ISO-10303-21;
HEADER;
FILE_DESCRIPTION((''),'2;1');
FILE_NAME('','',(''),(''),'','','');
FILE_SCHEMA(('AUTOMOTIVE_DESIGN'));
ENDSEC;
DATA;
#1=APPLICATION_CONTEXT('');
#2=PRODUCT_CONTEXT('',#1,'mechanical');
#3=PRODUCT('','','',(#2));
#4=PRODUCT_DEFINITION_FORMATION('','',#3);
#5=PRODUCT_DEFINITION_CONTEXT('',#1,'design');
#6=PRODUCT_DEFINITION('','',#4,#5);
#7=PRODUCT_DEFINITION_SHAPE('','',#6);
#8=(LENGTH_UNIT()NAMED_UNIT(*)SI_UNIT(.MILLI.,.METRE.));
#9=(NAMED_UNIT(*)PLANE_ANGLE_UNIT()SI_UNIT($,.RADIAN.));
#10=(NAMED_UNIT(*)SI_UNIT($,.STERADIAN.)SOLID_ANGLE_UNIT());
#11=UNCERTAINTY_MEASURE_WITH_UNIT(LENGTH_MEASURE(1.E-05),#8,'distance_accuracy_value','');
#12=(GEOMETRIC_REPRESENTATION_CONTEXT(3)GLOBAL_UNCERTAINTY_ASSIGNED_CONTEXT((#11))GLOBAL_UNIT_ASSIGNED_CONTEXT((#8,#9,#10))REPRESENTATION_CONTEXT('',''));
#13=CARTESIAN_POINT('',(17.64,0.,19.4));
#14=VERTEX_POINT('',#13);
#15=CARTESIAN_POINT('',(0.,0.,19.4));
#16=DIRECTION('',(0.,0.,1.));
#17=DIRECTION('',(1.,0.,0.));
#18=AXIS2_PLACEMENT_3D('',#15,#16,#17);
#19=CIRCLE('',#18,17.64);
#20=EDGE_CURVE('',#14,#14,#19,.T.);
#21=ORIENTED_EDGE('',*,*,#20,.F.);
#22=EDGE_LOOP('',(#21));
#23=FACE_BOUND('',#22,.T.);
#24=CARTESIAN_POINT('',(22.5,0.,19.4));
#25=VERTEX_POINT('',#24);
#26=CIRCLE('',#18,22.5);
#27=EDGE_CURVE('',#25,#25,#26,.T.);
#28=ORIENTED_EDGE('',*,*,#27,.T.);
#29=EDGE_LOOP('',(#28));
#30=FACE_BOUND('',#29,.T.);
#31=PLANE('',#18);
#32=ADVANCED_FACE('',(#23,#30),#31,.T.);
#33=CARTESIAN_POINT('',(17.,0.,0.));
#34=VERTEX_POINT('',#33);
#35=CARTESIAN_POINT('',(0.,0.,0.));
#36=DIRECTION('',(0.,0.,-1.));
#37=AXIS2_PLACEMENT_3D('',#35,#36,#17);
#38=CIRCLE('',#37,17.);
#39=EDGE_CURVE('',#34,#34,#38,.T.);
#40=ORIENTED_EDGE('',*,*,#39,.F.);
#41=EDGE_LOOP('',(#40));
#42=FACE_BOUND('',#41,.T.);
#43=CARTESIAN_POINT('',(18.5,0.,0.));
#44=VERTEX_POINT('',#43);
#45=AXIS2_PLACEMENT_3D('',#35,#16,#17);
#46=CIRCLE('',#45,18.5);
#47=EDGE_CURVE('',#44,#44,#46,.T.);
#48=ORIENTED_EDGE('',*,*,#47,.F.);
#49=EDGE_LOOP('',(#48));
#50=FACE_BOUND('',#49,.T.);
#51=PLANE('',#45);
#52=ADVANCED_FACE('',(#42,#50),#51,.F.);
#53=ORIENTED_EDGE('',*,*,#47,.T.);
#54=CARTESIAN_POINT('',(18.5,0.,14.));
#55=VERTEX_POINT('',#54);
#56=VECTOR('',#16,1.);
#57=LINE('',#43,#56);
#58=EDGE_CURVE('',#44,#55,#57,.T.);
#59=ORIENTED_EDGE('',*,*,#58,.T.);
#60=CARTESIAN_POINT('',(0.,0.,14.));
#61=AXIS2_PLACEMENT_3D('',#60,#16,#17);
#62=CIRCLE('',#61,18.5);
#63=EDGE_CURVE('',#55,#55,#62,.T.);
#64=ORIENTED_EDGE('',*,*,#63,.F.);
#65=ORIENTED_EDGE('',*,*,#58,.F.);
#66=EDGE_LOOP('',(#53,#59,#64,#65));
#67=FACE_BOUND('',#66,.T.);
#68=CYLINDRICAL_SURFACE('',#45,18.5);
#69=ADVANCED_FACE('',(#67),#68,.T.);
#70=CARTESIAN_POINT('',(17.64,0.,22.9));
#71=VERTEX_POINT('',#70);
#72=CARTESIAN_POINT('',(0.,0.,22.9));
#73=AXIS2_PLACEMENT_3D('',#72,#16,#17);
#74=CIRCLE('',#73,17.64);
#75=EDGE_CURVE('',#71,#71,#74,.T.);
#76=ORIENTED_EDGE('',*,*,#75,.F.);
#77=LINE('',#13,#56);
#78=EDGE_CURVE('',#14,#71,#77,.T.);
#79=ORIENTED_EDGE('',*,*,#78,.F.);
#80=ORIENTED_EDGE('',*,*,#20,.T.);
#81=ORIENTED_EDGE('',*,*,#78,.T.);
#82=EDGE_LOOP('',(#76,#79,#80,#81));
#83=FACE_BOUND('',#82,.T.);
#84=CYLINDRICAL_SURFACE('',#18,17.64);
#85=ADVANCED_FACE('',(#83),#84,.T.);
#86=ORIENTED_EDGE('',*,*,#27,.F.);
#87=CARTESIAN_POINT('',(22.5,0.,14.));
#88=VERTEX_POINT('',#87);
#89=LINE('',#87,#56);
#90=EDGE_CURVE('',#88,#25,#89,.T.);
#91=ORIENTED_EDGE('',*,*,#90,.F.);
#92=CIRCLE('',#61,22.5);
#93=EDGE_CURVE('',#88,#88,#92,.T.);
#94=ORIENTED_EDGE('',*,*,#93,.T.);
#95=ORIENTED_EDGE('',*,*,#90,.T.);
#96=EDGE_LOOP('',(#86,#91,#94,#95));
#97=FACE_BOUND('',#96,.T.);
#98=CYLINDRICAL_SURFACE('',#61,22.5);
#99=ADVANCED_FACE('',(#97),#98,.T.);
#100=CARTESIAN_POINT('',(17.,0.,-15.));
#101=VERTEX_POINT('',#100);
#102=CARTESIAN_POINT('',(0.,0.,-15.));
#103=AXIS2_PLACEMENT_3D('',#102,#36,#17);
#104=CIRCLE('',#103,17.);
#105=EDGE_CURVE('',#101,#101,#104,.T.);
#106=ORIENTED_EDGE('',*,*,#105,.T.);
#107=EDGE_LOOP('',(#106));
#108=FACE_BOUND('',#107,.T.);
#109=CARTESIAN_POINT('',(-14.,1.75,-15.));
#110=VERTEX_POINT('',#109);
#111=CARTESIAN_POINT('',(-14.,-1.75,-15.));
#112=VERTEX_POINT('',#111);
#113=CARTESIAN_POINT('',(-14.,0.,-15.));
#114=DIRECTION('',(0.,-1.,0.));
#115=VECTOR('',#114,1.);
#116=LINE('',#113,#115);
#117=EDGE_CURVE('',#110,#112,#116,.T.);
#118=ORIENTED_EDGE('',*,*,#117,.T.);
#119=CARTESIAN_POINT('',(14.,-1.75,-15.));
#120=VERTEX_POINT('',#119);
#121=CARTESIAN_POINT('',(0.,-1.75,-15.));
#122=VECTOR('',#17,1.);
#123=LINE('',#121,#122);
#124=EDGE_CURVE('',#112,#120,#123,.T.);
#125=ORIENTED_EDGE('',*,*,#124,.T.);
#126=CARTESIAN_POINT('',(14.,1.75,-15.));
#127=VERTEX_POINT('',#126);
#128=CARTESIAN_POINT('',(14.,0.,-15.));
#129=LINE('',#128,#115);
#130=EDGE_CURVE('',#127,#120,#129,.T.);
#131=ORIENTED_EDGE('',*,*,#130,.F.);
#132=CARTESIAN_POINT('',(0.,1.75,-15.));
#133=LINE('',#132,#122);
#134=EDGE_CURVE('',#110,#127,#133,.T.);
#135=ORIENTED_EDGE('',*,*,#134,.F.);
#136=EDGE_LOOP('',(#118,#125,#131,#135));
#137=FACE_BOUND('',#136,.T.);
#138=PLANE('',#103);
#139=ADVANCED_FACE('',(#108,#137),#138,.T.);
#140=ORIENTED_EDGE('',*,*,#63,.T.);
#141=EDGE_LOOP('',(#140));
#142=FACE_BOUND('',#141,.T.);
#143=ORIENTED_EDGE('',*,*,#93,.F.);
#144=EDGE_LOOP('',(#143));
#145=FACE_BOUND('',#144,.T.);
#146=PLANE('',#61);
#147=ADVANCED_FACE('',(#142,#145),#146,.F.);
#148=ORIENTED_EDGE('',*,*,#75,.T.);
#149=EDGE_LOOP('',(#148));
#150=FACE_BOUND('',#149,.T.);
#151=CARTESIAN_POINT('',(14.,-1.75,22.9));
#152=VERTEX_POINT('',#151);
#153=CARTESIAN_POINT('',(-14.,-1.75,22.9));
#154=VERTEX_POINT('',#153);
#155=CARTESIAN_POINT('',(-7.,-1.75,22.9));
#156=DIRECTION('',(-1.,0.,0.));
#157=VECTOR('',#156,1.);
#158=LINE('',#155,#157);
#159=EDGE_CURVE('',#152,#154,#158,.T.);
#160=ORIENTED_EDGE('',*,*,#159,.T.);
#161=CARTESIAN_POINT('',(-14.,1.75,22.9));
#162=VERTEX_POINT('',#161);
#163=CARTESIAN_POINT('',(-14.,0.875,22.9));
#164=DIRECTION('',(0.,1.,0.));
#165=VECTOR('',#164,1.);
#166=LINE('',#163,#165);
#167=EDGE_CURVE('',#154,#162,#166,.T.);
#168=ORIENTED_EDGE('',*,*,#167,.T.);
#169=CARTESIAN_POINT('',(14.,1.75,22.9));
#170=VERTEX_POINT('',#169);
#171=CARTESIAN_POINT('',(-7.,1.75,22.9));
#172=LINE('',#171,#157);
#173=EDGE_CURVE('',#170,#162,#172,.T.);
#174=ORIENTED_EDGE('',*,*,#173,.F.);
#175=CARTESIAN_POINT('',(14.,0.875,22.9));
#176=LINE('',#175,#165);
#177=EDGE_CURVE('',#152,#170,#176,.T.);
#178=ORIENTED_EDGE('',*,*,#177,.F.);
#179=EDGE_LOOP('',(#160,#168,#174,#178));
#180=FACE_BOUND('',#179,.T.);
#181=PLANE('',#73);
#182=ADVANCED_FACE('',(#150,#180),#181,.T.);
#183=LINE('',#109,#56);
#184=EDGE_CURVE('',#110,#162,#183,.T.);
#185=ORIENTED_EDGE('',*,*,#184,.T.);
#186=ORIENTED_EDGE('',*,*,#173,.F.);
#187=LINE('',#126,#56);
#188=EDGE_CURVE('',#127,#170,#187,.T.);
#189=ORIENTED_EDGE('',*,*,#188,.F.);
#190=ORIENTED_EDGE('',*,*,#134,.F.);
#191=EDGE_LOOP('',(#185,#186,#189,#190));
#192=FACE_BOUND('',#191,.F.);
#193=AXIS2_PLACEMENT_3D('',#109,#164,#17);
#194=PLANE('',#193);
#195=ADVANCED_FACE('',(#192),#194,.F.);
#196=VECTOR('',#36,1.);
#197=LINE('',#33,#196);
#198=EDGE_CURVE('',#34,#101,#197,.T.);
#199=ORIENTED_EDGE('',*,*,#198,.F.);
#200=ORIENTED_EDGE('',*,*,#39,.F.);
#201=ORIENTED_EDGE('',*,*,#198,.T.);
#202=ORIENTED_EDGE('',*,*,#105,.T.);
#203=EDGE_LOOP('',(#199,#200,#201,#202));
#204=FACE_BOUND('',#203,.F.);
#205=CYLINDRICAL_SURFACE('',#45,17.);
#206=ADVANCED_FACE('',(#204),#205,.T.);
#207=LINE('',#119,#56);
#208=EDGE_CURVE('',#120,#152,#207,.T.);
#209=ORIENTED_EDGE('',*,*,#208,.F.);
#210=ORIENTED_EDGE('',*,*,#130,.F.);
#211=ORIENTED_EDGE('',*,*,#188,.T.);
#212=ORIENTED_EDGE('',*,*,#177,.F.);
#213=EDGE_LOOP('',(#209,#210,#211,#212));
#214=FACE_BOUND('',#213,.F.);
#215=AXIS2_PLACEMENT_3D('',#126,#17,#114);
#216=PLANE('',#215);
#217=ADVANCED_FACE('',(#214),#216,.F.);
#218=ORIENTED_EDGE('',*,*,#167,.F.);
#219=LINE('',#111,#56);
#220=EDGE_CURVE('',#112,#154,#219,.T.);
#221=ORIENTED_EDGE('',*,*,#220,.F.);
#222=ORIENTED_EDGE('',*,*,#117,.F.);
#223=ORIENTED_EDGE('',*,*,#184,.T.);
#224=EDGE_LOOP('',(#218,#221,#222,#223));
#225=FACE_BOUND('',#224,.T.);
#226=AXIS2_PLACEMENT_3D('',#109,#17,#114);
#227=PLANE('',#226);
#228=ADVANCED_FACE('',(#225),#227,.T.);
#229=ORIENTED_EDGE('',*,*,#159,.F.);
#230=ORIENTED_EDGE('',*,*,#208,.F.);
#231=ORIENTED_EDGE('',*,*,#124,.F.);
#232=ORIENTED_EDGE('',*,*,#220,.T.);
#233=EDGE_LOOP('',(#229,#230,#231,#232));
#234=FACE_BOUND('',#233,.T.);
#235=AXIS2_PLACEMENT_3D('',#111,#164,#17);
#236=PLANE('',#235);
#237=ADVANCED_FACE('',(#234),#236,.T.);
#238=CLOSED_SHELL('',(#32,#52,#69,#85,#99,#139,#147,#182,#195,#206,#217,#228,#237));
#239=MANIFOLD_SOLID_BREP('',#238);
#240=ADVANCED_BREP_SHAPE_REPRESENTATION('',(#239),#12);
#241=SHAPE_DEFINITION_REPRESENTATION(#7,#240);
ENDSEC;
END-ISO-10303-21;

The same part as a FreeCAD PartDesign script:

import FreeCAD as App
import Part
import Sketcher

V = App.Vector
Q = App.Units.Quantity


def add_polygon(sketch, points):
    """Adds a closed chain of lines whose ends are joined by coincident constraints."""
    first, n = sketch.GeometryCount, len(points)
    for a, b in zip(points, points[1:] + points[:1]):
        sketch.addGeometry(Part.LineSegment(App.Vector(*a, 0), App.Vector(*b, 0)), False)
    for i in range(n):
        sketch.addConstraint(Sketcher.Constraint("Coincident", first + i, 2, first + (i + 1) % n, 1))

doc = App.newDocument("Part")
body = doc.addObject("PartDesign::Body", "Body")

sketch1 = body.newObject("Sketcher::SketchObject", "Sketch")
sketch1.AttachmentSupport = (doc.getObject("XZ_Plane"), [""])
sketch1.MapMode = "FlatFace"
add_polygon(sketch1, [(0, 22.9), (0, 0), (18.5, 0), (18.5, 14), (22.5, 14), (22.5, 19.4), (17.6, 19.4), (17.6, 22.9)])
sketch1.addConstraint(Sketcher.Constraint("Vertical", 0))
sketch1.addConstraint(Sketcher.Constraint("Horizontal", 1))
sketch1.addConstraint(Sketcher.Constraint("Vertical", 2))
sketch1.addConstraint(Sketcher.Constraint("Horizontal", 3))
sketch1.addConstraint(Sketcher.Constraint("Vertical", 4))
sketch1.addConstraint(Sketcher.Constraint("Horizontal", 5))
sketch1.addConstraint(Sketcher.Constraint("Vertical", 6))
sketch1.addConstraint(Sketcher.Constraint("Horizontal", 7))
sketch1.addConstraint(Sketcher.Constraint("Coincident", 0, 2, -1, 1))
sketch1.addConstraint(Sketcher.Constraint("DistanceX", 3, 1, 3, 2, Q("4 mm")))
sketch1.addConstraint(Sketcher.Constraint("DistanceY", 2, 1, 2, 2, Q("14 mm")))
sketch1.addConstraint(Sketcher.Constraint("DistanceX", 1, 1, 1, 2, Q("18.5 mm")))
sketch1.addConstraint(Sketcher.Constraint("DistanceY", 0, 2, 0, 1, Q("22.9 mm")))
sketch1.addConstraint(Sketcher.Constraint("DistanceY", 4, 1, 4, 2, Q("5.4 mm")))
sketch1.addConstraint(Sketcher.Constraint("DistanceX", 5, 2, 5, 1, Q("4.86 mm")))
revolution = body.newObject("PartDesign::Revolution", "Revolution")
revolution.Profile = sketch1
revolution.ReferenceAxis = (sketch1, ["V_Axis"])
revolution.Angle = 360

sketch2 = body.newObject("Sketcher::SketchObject", "Sketch001")
sketch2.AttachmentSupport = (doc.getObject("XY_Plane"), [""])
sketch2.MapMode = "FlatFace"
sketch2.addGeometry(Part.Circle(V(0, 0, 0), V(0, 0, 1), 17), False)
sketch2.addConstraint(Sketcher.Constraint("Coincident", 0, 3, -1, 1))
sketch2.addConstraint(Sketcher.Constraint("Diameter", 0, Q("34 mm")))
pad1 = body.newObject("PartDesign::Pad", "Pad")
pad1.Profile = sketch2
pad1.Length = 15
pad1.Reversed = True

sketch3 = body.newObject("Sketcher::SketchObject", "Sketch002")
sketch3.AttachmentSupport = (doc.getObject("XY_Plane"), [""])
sketch3.MapMode = "FlatFace"
sketch3.AttachmentOffset = App.Placement(V(0, 0, -15), App.Rotation())
add_polygon(sketch3, [(-14, -1.8), (-14, 1.8), (14, 1.8), (14, -1.8)])
sketch3.addConstraint(Sketcher.Constraint("Vertical", 0))
sketch3.addConstraint(Sketcher.Constraint("Horizontal", 1))
sketch3.addConstraint(Sketcher.Constraint("Vertical", 2))
sketch3.addConstraint(Sketcher.Constraint("Horizontal", 3))
sketch3.addConstraint(Sketcher.Constraint("Symmetric", 0, 2, 2, 2, -1, 1))
sketch3.addConstraint(Sketcher.Constraint("DistanceX", 1, 1, 1, 2, Q("28 mm")))
sketch3.addConstraint(Sketcher.Constraint("DistanceY", 0, 1, 0, 2, Q("3.5 mm")))
pocket1 = body.newObject("PartDesign::Pocket", "Pocket")
pocket1.Profile = sketch3
pocket1.Length = 40
pocket1.Reversed = True

doc.recompute()
